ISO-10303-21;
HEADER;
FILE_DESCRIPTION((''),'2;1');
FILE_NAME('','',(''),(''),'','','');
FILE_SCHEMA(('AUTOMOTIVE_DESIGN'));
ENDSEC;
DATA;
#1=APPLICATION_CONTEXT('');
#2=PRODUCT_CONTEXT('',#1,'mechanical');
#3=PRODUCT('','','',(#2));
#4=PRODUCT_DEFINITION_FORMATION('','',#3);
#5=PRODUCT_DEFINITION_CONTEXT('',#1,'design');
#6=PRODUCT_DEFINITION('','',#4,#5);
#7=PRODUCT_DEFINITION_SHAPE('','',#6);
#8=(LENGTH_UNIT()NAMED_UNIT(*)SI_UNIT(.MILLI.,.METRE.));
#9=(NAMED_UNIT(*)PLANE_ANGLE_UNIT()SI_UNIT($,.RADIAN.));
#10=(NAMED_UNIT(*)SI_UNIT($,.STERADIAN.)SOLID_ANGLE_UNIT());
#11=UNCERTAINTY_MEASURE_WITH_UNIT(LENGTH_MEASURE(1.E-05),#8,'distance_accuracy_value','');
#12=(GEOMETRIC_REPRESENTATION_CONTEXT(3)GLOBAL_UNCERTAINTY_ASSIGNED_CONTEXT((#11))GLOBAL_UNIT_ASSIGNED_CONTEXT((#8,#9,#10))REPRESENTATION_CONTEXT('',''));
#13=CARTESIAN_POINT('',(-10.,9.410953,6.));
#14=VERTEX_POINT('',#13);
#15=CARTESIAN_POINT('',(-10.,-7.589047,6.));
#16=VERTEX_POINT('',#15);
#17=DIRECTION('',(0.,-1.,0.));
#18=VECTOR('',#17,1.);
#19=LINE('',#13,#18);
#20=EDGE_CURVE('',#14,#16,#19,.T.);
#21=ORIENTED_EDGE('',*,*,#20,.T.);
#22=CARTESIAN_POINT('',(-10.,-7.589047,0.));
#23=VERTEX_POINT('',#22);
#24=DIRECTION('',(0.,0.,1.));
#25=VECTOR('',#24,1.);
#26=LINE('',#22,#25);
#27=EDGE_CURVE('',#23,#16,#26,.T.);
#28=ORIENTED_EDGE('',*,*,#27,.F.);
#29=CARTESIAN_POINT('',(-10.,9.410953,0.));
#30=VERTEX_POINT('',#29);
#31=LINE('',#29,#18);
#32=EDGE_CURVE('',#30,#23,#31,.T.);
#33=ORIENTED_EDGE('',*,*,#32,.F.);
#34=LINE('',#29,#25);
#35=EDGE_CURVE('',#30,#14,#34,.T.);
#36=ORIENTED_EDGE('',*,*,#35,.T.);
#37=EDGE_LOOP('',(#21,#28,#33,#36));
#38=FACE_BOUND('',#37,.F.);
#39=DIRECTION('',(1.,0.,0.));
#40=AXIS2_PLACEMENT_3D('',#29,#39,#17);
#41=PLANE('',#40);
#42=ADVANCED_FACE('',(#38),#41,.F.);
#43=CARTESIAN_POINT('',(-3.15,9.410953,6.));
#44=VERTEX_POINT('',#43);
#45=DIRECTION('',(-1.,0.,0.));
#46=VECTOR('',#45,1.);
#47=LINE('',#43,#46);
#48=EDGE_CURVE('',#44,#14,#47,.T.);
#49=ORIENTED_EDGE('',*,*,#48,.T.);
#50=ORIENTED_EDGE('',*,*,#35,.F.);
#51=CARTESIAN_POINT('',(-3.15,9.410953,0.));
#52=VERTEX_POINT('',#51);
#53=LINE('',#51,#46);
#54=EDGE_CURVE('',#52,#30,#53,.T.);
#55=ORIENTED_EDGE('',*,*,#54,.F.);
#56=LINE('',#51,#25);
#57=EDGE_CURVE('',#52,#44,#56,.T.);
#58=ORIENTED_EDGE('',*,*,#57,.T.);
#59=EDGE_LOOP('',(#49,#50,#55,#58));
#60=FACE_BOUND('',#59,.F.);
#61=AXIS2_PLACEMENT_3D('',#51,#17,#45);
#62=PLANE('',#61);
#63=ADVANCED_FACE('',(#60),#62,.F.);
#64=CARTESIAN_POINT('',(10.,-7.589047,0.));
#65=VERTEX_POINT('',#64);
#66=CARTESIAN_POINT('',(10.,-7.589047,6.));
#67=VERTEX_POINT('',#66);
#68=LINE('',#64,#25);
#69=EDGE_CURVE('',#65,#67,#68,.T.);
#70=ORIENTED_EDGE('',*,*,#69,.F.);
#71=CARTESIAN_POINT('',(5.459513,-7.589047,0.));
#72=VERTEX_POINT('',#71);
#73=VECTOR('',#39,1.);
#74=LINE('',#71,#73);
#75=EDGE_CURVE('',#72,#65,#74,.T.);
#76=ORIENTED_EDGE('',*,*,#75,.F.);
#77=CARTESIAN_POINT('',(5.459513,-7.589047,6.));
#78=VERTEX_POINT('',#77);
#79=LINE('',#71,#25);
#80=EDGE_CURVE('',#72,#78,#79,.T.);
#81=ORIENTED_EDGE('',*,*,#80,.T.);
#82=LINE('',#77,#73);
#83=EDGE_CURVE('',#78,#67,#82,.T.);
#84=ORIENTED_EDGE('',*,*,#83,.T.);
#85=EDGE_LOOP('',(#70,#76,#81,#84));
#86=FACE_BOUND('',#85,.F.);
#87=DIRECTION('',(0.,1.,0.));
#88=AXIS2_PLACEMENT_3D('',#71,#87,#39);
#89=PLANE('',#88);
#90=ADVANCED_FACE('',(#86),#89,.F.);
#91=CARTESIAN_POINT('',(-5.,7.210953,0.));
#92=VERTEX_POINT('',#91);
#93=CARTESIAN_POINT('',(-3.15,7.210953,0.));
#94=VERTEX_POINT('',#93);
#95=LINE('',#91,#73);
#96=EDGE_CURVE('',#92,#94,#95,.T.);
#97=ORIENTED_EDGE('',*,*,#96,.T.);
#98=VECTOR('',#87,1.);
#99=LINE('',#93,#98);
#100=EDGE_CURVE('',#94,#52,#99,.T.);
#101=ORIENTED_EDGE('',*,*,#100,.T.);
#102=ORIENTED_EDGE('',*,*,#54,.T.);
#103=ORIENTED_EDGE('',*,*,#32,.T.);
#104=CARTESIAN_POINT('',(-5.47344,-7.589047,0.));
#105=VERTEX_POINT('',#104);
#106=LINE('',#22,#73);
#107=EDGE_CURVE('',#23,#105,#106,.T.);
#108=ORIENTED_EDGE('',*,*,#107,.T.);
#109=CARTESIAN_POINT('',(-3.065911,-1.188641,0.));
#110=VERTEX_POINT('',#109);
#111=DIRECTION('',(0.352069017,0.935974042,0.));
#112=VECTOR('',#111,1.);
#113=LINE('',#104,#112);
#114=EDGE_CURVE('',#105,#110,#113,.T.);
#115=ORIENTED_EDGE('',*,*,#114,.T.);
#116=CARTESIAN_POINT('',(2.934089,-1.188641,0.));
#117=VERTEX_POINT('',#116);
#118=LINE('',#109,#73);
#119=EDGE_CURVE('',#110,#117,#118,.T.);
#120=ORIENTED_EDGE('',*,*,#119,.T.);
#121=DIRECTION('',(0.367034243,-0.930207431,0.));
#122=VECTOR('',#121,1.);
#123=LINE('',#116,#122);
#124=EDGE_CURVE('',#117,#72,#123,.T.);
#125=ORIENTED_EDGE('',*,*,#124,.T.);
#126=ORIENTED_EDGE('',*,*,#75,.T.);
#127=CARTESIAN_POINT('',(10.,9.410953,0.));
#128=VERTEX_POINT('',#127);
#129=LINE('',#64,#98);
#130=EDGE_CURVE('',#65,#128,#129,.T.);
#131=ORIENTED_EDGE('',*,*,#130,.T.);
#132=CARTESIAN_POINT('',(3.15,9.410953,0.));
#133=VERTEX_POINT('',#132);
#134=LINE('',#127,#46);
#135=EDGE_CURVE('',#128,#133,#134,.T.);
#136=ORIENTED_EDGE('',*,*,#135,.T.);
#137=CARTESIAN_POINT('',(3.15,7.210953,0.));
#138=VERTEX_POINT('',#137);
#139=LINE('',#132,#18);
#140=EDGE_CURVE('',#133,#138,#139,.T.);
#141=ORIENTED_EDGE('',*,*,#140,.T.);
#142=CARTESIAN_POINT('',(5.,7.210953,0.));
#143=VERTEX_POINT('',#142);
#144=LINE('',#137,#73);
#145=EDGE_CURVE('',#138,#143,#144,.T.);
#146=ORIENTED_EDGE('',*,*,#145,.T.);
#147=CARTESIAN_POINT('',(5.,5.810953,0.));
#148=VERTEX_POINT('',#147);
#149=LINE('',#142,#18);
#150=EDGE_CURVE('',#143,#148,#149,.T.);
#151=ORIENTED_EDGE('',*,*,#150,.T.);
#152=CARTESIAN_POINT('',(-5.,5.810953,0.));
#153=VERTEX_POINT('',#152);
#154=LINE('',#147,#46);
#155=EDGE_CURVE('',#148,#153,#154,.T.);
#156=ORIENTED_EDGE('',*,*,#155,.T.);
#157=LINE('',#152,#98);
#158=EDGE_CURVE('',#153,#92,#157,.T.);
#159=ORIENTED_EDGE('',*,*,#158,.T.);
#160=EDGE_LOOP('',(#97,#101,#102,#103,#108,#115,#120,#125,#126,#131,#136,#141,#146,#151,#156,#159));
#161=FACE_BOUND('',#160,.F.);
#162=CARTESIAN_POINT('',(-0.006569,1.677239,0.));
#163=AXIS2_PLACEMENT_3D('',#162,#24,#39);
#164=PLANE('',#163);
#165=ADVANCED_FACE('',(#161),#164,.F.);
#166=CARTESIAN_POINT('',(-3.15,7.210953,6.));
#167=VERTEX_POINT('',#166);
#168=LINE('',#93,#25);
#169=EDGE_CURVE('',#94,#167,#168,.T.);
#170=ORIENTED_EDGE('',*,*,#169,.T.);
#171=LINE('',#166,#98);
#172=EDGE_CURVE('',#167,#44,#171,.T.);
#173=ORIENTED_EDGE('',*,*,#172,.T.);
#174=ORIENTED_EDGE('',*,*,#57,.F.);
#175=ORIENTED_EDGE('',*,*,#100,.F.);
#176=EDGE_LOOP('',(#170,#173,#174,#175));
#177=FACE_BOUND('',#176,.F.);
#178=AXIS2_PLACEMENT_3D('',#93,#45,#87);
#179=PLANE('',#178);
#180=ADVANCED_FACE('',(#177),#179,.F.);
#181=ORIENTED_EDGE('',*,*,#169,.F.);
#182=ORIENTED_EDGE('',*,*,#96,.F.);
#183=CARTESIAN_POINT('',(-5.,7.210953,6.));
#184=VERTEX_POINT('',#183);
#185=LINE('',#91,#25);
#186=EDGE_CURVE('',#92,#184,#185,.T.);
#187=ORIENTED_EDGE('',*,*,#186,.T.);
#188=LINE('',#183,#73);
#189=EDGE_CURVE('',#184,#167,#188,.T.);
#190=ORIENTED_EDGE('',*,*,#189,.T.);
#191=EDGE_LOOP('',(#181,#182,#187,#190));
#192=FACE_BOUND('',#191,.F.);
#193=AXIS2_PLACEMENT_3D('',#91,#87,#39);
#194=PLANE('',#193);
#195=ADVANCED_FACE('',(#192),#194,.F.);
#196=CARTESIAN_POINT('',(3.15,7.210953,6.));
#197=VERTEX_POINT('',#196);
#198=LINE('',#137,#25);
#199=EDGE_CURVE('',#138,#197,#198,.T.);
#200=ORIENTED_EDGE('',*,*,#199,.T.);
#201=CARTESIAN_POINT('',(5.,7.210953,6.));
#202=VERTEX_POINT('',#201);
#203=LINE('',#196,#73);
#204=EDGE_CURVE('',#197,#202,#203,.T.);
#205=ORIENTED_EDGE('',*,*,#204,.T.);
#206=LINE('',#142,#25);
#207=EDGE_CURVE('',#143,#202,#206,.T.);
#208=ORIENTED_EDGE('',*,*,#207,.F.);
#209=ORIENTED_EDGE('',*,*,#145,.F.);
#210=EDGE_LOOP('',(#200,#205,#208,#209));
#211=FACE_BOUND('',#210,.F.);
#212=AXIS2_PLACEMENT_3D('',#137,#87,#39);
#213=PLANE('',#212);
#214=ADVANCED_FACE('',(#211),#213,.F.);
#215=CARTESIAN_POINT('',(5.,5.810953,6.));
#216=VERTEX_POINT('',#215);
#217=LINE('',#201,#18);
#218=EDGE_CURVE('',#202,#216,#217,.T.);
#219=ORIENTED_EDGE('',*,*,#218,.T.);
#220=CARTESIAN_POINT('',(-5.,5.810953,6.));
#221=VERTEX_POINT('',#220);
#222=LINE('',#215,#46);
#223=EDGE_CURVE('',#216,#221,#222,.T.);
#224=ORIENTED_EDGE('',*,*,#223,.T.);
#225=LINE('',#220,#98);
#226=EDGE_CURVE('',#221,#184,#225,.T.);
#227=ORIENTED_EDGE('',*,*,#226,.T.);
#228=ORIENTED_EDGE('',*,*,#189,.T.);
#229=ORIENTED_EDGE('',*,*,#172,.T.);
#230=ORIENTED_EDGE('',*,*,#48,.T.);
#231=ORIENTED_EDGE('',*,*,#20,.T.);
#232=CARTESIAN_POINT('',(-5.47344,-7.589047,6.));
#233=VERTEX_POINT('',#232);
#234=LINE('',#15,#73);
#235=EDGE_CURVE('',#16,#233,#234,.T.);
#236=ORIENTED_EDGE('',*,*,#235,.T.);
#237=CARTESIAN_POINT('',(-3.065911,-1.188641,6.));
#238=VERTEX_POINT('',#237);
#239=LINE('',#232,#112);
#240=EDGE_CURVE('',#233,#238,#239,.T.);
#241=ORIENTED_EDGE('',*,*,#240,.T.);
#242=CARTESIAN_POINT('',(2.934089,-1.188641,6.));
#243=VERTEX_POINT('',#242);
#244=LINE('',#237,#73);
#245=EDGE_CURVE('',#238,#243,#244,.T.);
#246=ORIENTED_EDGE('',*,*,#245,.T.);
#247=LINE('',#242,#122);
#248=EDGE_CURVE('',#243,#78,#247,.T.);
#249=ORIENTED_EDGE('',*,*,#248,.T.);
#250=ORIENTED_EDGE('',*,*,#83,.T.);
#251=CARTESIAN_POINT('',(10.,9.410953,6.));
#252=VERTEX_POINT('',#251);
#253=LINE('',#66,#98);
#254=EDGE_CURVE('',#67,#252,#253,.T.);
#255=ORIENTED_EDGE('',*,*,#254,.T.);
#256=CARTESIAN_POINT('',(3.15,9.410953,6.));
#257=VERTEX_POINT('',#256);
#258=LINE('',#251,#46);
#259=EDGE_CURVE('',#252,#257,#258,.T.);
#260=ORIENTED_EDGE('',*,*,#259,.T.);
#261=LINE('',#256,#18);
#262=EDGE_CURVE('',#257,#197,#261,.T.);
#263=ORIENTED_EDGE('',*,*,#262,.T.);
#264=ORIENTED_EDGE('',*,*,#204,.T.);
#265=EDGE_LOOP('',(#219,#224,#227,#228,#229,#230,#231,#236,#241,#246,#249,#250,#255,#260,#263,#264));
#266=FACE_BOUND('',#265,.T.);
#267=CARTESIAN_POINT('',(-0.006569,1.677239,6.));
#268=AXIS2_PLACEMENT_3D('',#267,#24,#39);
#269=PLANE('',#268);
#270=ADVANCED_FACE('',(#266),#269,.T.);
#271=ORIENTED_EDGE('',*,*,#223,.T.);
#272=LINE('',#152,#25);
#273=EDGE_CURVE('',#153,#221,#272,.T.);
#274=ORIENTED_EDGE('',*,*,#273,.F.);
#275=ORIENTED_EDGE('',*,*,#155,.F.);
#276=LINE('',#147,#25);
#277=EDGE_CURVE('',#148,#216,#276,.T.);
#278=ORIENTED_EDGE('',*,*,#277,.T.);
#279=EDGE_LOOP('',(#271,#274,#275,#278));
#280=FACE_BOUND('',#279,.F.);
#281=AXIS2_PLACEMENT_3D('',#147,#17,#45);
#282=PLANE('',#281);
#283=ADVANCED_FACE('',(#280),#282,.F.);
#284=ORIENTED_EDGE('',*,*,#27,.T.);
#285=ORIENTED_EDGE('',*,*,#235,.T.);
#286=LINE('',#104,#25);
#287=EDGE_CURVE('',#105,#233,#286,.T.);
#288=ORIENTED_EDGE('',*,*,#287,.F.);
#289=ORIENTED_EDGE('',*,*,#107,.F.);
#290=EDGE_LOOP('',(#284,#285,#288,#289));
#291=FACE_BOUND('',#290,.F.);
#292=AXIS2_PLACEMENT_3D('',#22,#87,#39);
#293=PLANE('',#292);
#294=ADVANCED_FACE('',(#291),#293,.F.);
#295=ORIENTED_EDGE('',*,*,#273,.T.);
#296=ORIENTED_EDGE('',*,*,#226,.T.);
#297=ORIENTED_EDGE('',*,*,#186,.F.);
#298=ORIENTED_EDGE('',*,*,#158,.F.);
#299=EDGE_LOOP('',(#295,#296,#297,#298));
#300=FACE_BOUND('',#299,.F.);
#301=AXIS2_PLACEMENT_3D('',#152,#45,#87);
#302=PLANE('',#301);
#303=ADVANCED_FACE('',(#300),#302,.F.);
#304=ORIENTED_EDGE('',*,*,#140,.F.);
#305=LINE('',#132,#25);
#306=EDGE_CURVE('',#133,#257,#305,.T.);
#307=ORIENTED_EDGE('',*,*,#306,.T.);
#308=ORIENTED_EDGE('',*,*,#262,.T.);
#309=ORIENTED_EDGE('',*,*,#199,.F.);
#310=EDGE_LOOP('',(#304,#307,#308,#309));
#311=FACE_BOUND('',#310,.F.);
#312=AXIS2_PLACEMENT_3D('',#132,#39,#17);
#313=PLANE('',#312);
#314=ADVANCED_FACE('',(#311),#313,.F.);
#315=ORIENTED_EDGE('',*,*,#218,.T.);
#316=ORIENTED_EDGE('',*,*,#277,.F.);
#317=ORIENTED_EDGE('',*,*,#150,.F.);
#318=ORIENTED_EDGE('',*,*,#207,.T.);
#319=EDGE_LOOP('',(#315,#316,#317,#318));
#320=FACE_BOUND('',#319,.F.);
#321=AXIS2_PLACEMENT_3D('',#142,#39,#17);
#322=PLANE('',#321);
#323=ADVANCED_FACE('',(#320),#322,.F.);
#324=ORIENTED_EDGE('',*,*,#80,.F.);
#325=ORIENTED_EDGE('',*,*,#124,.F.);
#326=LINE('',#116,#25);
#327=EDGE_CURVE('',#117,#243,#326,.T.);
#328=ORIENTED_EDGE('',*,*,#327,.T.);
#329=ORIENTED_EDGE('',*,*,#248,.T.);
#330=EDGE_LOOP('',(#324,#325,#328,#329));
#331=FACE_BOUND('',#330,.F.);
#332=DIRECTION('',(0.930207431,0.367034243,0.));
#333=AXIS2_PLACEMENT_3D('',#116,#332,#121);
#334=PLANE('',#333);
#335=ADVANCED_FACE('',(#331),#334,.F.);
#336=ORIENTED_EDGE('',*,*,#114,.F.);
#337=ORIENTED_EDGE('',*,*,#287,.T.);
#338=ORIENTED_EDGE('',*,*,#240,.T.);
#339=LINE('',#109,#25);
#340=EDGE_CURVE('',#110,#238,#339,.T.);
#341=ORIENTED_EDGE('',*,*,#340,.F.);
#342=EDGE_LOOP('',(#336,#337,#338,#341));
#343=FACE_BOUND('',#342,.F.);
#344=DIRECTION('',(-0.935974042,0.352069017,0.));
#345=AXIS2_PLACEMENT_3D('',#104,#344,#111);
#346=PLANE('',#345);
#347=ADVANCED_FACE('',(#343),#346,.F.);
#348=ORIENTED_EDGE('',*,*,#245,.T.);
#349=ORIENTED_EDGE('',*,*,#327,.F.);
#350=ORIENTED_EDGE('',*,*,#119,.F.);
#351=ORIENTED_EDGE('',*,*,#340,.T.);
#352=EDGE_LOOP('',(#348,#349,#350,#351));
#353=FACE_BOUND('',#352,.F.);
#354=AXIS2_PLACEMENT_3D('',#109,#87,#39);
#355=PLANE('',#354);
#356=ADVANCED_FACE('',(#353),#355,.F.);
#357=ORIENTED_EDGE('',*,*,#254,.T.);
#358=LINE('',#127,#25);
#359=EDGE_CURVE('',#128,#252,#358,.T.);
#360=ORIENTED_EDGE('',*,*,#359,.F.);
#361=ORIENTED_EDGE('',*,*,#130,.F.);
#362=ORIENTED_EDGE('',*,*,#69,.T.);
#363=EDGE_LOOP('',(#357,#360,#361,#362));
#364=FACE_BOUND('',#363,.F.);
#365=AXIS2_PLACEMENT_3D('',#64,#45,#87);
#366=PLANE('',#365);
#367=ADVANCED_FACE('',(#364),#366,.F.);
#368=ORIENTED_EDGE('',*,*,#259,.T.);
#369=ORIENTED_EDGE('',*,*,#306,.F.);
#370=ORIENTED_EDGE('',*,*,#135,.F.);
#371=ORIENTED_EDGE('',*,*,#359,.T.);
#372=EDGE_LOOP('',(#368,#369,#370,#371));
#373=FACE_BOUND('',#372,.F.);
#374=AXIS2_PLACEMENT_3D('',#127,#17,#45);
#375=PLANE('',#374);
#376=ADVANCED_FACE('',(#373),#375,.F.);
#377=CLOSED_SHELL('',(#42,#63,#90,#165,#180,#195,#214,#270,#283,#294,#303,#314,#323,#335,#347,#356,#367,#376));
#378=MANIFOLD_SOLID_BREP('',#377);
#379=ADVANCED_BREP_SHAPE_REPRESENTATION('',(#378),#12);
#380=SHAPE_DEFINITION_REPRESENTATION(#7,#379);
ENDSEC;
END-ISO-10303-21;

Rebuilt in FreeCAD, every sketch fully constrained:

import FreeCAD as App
import Part
import Sketcher

V = App.Vector


def add_polygon(sketch, points):
    """Adds a closed chain of lines whose ends are joined by coincident constraints."""
    first, n = sketch.GeometryCount, len(points)
    for a, b in zip(points, points[1:] + points[:1]):
        sketch.addGeometry(Part.LineSegment(App.Vector(*a, 0), App.Vector(*b, 0)), False)
    for i in range(n):
        sketch.addConstraint(Sketcher.Constraint("Coincident", first + i, 2, first + (i + 1) % n, 1))

doc = App.newDocument("Part")
params = doc.addObject("Spreadsheet::Sheet", "Params")
for row, (alias, value) in enumerate([
    ("sketch1_width", "10 mm"),
    ("sketch1_width2", "6 mm"),
    ("sketch1_height", "17 mm"),
    ("sketch1_height2", "1.4 mm"),
    ("sketch1_height3", "2.2 mm"),
    ("pad1_length", "6 mm"),
], start=1):
    params.set(f"A{row}", alias)
    params.set(f"B{row}", "=" + value)
    params.setAlias(f"B{row}", alias)

body = doc.addObject("PartDesign::Body", "Body")

# Sketch on XY plane
sketch1 = doc.addObject("Sketcher::SketchObject", "Sketch")
body.addObject(sketch1)
sketch1.AttachmentSupport = (doc.XY_Plane, [""])
sketch1.MapMode = "FlatFace"
add_polygon(sketch1, [(5, 7.2), (5, 5.8), (-5, 5.8), (-5, 7.2), (-3.1, 7.2), (-3.1, 9.4), (-10, 9.4), (-10, -7.6), (-5.5, -7.6), (-3.1, -1.2), (2.9, -1.2), (5.5, -7.6), (10, -7.6), (10, 9.4), (3.1, 9.4), (3.1, 7.2)])  # lines 0-15
sketch1.addConstraint([
    Sketcher.Constraint("Vertical", 0),
    Sketcher.Constraint("Horizontal", 1),
    Sketcher.Constraint("Vertical", 2),
    Sketcher.Constraint("Horizontal", 3),
    Sketcher.Constraint("Vertical", 4),
    Sketcher.Constraint("Horizontal", 5),
    Sketcher.Constraint("Vertical", 6),
    Sketcher.Constraint("Horizontal", 7),
    Sketcher.Constraint("Horizontal", 9),
    Sketcher.Constraint("Horizontal", 11),
    Sketcher.Constraint("Vertical", 12),
    Sketcher.Constraint("Horizontal", 13),
    Sketcher.Constraint("Vertical", 14),
    Sketcher.Constraint("Horizontal", 15),
    Sketcher.Constraint("Symmetric", 6, 2, 11, 2, -2),
    Sketcher.Constraint("Symmetric", 4, 2, 13, 2, -2),
    Sketcher.Constraint("Symmetric", 2, 2, 15, 2, -2),
    Sketcher.Constraint("DistanceX", 1, 2, 1, 1, 10.0),
    Sketcher.Constraint("DistanceX", 9, 1, 9, 2, 6.0),
    Sketcher.Constraint("DistanceY", 6, 2, 6, 1, 17.0),
    Sketcher.Constraint("DistanceY", 0, 2, 0, 1, 1.4),
    Sketcher.Constraint("DistanceY", 4, 1, 4, 2, 2.2),
    Sketcher.Constraint("DistanceX", 5, 2, -1, 1, 10.0),
    Sketcher.Constraint("DistanceX", 3, 1, 3, 2, 1.85),
    Sketcher.Constraint("DistanceX", 7, 1, 7, 2, 4.52656),
    Sketcher.Constraint("Distance", 8, 6.83823),
    Sketcher.Constraint("DistanceX", 11, 1, 11, 2, 4.540487),
    Sketcher.Constraint("DistanceX", 8, 2, -1, 1, 3.065911),
    Sketcher.Constraint("DistanceY", 8, 2, -1, 1, 1.188641),
])
sketch1.setExpression("Constraints[33]", "Params.sketch1_width")
sketch1.setExpression("Constraints[34]", "Params.sketch1_width2")
sketch1.setExpression("Constraints[35]", "Params.sketch1_height")
sketch1.setExpression("Constraints[36]", "Params.sketch1_height2")
sketch1.setExpression("Constraints[37]", "Params.sketch1_height3")
pad1 = doc.addObject("PartDesign::Pad", "Pad")
body.addObject(pad1)
pad1.Profile = sketch1
pad1.setExpression("Length", "Params.pad1_length")

doc.recompute()
